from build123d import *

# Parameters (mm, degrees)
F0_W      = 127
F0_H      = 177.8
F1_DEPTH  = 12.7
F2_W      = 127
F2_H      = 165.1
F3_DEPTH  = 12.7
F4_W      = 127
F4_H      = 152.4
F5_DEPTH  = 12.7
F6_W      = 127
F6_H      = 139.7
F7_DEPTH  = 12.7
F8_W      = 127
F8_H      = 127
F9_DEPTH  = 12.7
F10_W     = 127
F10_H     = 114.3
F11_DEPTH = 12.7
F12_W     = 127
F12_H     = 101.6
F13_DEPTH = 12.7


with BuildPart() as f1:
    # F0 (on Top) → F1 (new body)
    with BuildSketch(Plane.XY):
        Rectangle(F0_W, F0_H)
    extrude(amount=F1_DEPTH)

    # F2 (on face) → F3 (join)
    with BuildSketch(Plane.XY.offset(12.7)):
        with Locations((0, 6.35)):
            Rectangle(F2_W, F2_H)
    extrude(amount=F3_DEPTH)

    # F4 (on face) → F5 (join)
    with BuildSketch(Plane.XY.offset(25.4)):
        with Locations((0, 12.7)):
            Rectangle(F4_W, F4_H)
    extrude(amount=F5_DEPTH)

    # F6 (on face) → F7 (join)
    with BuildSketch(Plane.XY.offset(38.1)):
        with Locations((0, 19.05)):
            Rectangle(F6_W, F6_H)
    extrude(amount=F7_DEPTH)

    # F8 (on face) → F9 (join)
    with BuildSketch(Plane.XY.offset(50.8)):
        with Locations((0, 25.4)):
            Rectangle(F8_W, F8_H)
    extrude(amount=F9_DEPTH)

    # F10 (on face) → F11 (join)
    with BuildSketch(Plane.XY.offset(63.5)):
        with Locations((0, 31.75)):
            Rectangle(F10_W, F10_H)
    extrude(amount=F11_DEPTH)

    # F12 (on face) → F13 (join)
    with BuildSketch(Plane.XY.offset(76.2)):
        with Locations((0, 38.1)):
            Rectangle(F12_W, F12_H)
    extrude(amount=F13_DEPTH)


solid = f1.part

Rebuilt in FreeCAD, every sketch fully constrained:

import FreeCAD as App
import Part
import Sketcher
Q = App.Units.Quantity

doc = App.newDocument("Part")
body = doc.addObject("PartDesign::Body", "Body")

sketch1 = doc.addObject("Sketcher::SketchObject", "Sketch")
body.addObject(sketch1)
sketch1.AttachmentSupport = (doc.XY_Plane, [""])
sketch1.MapMode = "FlatFace"
sketch1.addGeometry([
    Part.LineSegment(App.Vector(-63.5, 88.9, 0), App.Vector(-63.5, -88.9, 0)),
    Part.LineSegment(App.Vector(-63.5, -88.9, 0), App.Vector(63.5, -88.9, 0)),
    Part.LineSegment(App.Vector(63.5, -88.9, 0), App.Vector(63.5, 88.9, 0)),
    Part.LineSegment(App.Vector(63.5, 88.9, 0), App.Vector(-63.5, 88.9, 0)),
], False)
sketch1.addConstraint([
    Sketcher.Constraint("Coincident", 0, 2, 1, 1),
    Sketcher.Constraint("Coincident", 1, 2, 2, 1),
    Sketcher.Constraint("Coincident", 2, 2, 3, 1),
    Sketcher.Constraint("Coincident", 3, 2, 0, 1),
    Sketcher.Constraint("Vertical", 0),
    Sketcher.Constraint("Horizontal", 1),
    Sketcher.Constraint("Vertical", 2),
    Sketcher.Constraint("Horizontal", 3),
    Sketcher.Constraint("Symmetric", 0, 2, 2, 2, -1, 1),
    Sketcher.Constraint("DistanceX", 1, 1, 1, 2, Q("5 in")),
    Sketcher.Constraint("DistanceY", 0, 2, 0, 1, Q("7 in")),
])
pad1 = doc.addObject("PartDesign::Pad", "Pad")
body.addObject(pad1)
pad1.Profile = sketch1
pad1.Length = Q("0.5 in")

sketch2 = doc.addObject("Sketcher::SketchObject", "Sketch001")
body.addObject(sketch2)
sketch2.AttachmentSupport = (doc.XY_Plane, [""])
sketch2.MapMode = "FlatFace"
sketch2.AttachmentOffset = App.Placement(App.Vector(0, 0, 0.5 * 25.4), App.Rotation())
sketch2.addGeometry([
    Part.LineSegment(App.Vector(-63.5, 88.9, 0), App.Vector(-63.5, -76.2, 0)),
    Part.LineSegment(App.Vector(-63.5, -76.2, 0), App.Vector(63.5, -76.2, 0)),
    Part.LineSegment(App.Vector(63.5, -76.2, 0), App.Vector(63.5, 88.9, 0)),
    Part.LineSegment(App.Vector(63.5, 88.9, 0), App.Vector(-63.5, 88.9, 0)),
], False)
sketch2.addConstraint([
    Sketcher.Constraint("Coincident", 0, 2, 1, 1),
    Sketcher.Constraint("Coincident", 1, 2, 2, 1),
    Sketcher.Constraint("Coincident", 2, 2, 3, 1),
    Sketcher.Constraint("Coincident", 3, 2, 0, 1),
    Sketcher.Constraint("Vertical", 0),
    Sketcher.Constraint("Horizontal", 1),
    Sketcher.Constraint("Vertical", 2),
    Sketcher.Constraint("Horizontal", 3),
    Sketcher.Constraint("DistanceX", 1, 1, 1, 2, Q("5 in")),
    Sketcher.Constraint("DistanceY", 0, 2, 0, 1, Q("6.5 in")),
    Sketcher.Constraint("DistanceY", 0, 2, -1, 1, Q("3 in")),
    Sketcher.Constraint("DistanceX", 0, 2, -1, 1, Q("2.5 in")),
])
pad2 = doc.addObject("PartDesign::Pad", "Pad001")
body.addObject(pad2)
pad2.Profile = sketch2
pad2.Length = Q("0.5 in")

sketch3 = doc.addObject("Sketcher::SketchObject", "Sketch002")
body.addObject(sketch3)
sketch3.AttachmentSupport = (doc.XY_Plane, [""])
sketch3.MapMode = "FlatFace"
sketch3.AttachmentOffset = App.Placement(App.Vector(0, 0, 1 * 25.4), App.Rotation())
sketch3.addGeometry([
    Part.LineSegment(App.Vector(-63.5, 88.9, 0), App.Vector(-63.5, -63.5, 0)),
    Part.LineSegment(App.Vector(-63.5, -63.5, 0), App.Vector(63.5, -63.5, 0)),
    Part.LineSegment(App.Vector(63.5, -63.5, 0), App.Vector(63.5, 88.9, 0)),
    Part.LineSegment(App.Vector(63.5, 88.9, 0), App.Vector(-63.5, 88.9, 0)),
], False)
sketch3.addConstraint([
    Sketcher.Constraint("Coincident", 0, 2, 1, 1),
    Sketcher.Constraint("Coincident", 1, 2, 2, 1),
    Sketcher.Constraint("Coincident", 2, 2, 3, 1),
    Sketcher.Constraint("Coincident", 3, 2, 0, 1),
    Sketcher.Constraint("Vertical", 0),
    Sketcher.Constraint("Horizontal", 1),
    Sketcher.Constraint("Vertical", 2),
    Sketcher.Constraint("Horizontal", 3),
    Sketcher.Constraint("DistanceX", 1, 1, 1, 2, Q("5 in")),
    Sketcher.Constraint("DistanceY", 0, 2, 0, 1, Q("6 in")),
    Sketcher.Constraint("DistanceX", 0, 2, -1, 1, Q("2.5 in")),
    Sketcher.Constraint("DistanceY", 0, 2, -1, 1, Q("2.5 in")),
])
pad3 = doc.addObject("PartDesign::Pad", "Pad002")
body.addObject(pad3)
pad3.Profile = sketch3
pad3.Length = Q("0.5 in")

sketch4 = doc.addObject("Sketcher::SketchObject", "Sketch003")
body.addObject(sketch4)
sketch4.AttachmentSupport = (doc.XY_Plane, [""])
sketch4.MapMode = "FlatFace"
sketch4.AttachmentOffset = App.Placement(App.Vector(0, 0, 1.5 * 25.4), App.Rotation())
sketch4.addGeometry([
    Part.LineSegment(App.Vector(-63.5, 88.9, 0), App.Vector(-63.5, -50.8, 0)),
    Part.LineSegment(App.Vector(-63.5, -50.8, 0), App.Vector(63.5, -50.8, 0)),
    Part.LineSegment(App.Vector(63.5, -50.8, 0), App.Vector(63.5, 88.9, 0)),
    Part.LineSegment(App.Vector(63.5, 88.9, 0), App.Vector(-63.5, 88.9, 0)),
], False)
sketch4.addConstraint([
    Sketcher.Constraint("Coincident", 0, 2, 1, 1),
    Sketcher.Constraint("Coincident", 1, 2, 2, 1),
    Sketcher.Constraint("Coincident", 2, 2, 3, 1),
    Sketcher.Constraint("Coincident", 3, 2, 0, 1),
    Sketcher.Constraint("Vertical", 0),
    Sketcher.Constraint("Horizontal", 1),
    Sketcher.Constraint("Vertical", 2),
    Sketcher.Constraint("Horizontal", 3),
    Sketcher.Constraint("DistanceX", 1, 1, 1, 2, Q("5 in")),
    Sketcher.Constraint("DistanceY", 0, 2, 0, 1, Q("5.5 in")),
    Sketcher.Constraint("DistanceY", 0, 2, -1, 1, Q("2 in")),
    Sketcher.Constraint("DistanceX", 0, 2, -1, 1, Q("2.5 in")),
])
pad4 = doc.addObject("PartDesign::Pad", "Pad003")
body.addObject(pad4)
pad4.Profile = sketch4
pad4.Length = Q("0.5 in")

sketch5 = doc.addObject("Sketcher::SketchObject", "Sketch004")
body.addObject(sketch5)
sketch5.AttachmentSupport = (doc.XY_Plane, [""])
sketch5.MapMode = "FlatFace"
sketch5.AttachmentOffset = App.Placement(App.Vector(0, 0, 2 * 25.4), App.Rotation())
sketch5.addGeometry([
    Part.LineSegment(App.Vector(-63.5, 88.9, 0), App.Vector(-63.5, -38.1, 0)),
    Part.LineSegment(App.Vector(-63.5, -38.1, 0), App.Vector(63.5, -38.1, 0)),
    Part.LineSegment(App.Vector(63.5, -38.1, 0), App.Vector(63.5, 88.9, 0)),
    Part.LineSegment(App.Vector(63.5, 88.9, 0), App.Vector(-63.5, 88.9, 0)),
], False)
sketch5.addConstraint([
    Sketcher.Constraint("Coincident", 0, 2, 1, 1),
    Sketcher.Constraint("Coincident", 1, 2, 2, 1),
    Sketcher.Constraint("Coincident", 2, 2, 3, 1),
    Sketcher.Constraint("Coincident", 3, 2, 0, 1),
    Sketcher.Constraint("Vertical", 0),
    Sketcher.Constraint("Horizontal", 1),
    Sketcher.Constraint("Vertical", 2),
    Sketcher.Constraint("Horizontal", 3),
    Sketcher.Constraint("Equal", 3, 0),
    Sketcher.Constraint("DistanceX", 1, 1, 1, 2, Q("5 in")),
    Sketcher.Constraint("DistanceX", 0, 2, -1, 1, Q("2.5 in")),
    Sketcher.Constraint("DistanceY", 0, 2, -1, 1, Q("1.5 in")),
])
pad5 = doc.addObject("PartDesign::Pad", "Pad004")
body.addObject(pad5)
pad5.Profile = sketch5
pad5.Length = Q("0.5 in")

sketch6 = doc.addObject("Sketcher::SketchObject", "Sketch005")
body.addObject(sketch6)
sketch6.AttachmentSupport = (doc.XY_Plane, [""])
sketch6.MapMode = "FlatFace"
sketch6.AttachmentOffset = App.Placement(App.Vector(0, 0, 2.5 * 25.4), App.Rotation())
sketch6.addGeometry([
    Part.LineSegment(App.Vector(-63.5, 88.9, 0), App.Vector(-63.5, -25.4, 0)),
    Part.LineSegment(App.Vector(-63.5, -25.4, 0), App.Vector(63.5, -25.4, 0)),
    Part.LineSegment(App.Vector(63.5, -25.4, 0), App.Vector(63.5, 88.9, 0)),
    Part.LineSegment(App.Vector(63.5, 88.9, 0), App.Vector(-63.5, 88.9, 0)),
], False)
sketch6.addConstraint([
    Sketcher.Constraint("Coincident", 0, 2, 1, 1),
    Sketcher.Constraint("Coincident", 1, 2, 2, 1),
    Sketcher.Constraint("Coincident", 2, 2, 3, 1),
    Sketcher.Constraint("Coincident", 3, 2, 0, 1),
    Sketcher.Constraint("Vertical", 0),
    Sketcher.Constraint("Horizontal", 1),
    Sketcher.Constraint("Vertical", 2),
    Sketcher.Constraint("Horizontal", 3),
    Sketcher.Constraint("DistanceX", 1, 1, 1, 2, Q("5 in")),
    Sketcher.Constraint("DistanceY", 0, 2, 0, 1, Q("4.5 in")),
    Sketcher.Constraint("DistanceY", 0, 2, -1, 1, Q("1 in")),
    Sketcher.Constraint("DistanceX", 0, 2, -1, 1, Q("2.5 in")),
])
pad6 = doc.addObject("PartDesign::Pad", "Pad005")
body.addObject(pad6)
pad6.Profile = sketch6
pad6.Length = Q("0.5 in")

sketch7 = doc.addObject("Sketcher::SketchObject", "Sketch006")
body.addObject(sketch7)
sketch7.AttachmentSupport = (doc.XY_Plane, [""])
sketch7.MapMode = "FlatFace"
sketch7.AttachmentOffset = App.Placement(App.Vector(0, 0, 3 * 25.4), App.Rotation())
sketch7.addGeometry([
    Part.LineSegment(App.Vector(-63.5, 88.9, 0), App.Vector(-63.5, -12.7, 0)),
    Part.LineSegment(App.Vector(-63.5, -12.7, 0), App.Vector(63.5, -12.7, 0)),
    Part.LineSegment(App.Vector(63.5, -12.7, 0), App.Vector(63.5, 88.9, 0)),
    Part.LineSegment(App.Vector(63.5, 88.9, 0), App.Vector(-63.5, 88.9, 0)),
], False)
sketch7.addConstraint([
    Sketcher.Constraint("Coincident", 0, 2, 1, 1),
    Sketcher.Constraint("Coincident", 1, 2, 2, 1),
    Sketcher.Constraint("Coincident", 2, 2, 3, 1),
    Sketcher.Constraint("Coincident", 3, 2, 0, 1),
    Sketcher.Constraint("Vertical", 0),
    Sketcher.Constraint("Horizontal", 1),
    Sketcher.Constraint("Vertical", 2),
    Sketcher.Constraint("Horizontal", 3),
    Sketcher.Constraint("DistanceX", 1, 1, 1, 2, Q("5 in")),
    Sketcher.Constraint("DistanceY", 0, 2, 0, 1, Q("4 in")),
    Sketcher.Constraint("DistanceX", 0, 2, -1, 1, Q("2.5 in")),
    Sketcher.Constraint("DistanceY", 0, 2, -1, 1, Q("0.5 in")),
])
pad7 = doc.addObject("PartDesign::Pad", "Pad006")
body.addObject(pad7)
pad7.Profile = sketch7
pad7.Length = Q("0.5 in")

doc.recompute()
